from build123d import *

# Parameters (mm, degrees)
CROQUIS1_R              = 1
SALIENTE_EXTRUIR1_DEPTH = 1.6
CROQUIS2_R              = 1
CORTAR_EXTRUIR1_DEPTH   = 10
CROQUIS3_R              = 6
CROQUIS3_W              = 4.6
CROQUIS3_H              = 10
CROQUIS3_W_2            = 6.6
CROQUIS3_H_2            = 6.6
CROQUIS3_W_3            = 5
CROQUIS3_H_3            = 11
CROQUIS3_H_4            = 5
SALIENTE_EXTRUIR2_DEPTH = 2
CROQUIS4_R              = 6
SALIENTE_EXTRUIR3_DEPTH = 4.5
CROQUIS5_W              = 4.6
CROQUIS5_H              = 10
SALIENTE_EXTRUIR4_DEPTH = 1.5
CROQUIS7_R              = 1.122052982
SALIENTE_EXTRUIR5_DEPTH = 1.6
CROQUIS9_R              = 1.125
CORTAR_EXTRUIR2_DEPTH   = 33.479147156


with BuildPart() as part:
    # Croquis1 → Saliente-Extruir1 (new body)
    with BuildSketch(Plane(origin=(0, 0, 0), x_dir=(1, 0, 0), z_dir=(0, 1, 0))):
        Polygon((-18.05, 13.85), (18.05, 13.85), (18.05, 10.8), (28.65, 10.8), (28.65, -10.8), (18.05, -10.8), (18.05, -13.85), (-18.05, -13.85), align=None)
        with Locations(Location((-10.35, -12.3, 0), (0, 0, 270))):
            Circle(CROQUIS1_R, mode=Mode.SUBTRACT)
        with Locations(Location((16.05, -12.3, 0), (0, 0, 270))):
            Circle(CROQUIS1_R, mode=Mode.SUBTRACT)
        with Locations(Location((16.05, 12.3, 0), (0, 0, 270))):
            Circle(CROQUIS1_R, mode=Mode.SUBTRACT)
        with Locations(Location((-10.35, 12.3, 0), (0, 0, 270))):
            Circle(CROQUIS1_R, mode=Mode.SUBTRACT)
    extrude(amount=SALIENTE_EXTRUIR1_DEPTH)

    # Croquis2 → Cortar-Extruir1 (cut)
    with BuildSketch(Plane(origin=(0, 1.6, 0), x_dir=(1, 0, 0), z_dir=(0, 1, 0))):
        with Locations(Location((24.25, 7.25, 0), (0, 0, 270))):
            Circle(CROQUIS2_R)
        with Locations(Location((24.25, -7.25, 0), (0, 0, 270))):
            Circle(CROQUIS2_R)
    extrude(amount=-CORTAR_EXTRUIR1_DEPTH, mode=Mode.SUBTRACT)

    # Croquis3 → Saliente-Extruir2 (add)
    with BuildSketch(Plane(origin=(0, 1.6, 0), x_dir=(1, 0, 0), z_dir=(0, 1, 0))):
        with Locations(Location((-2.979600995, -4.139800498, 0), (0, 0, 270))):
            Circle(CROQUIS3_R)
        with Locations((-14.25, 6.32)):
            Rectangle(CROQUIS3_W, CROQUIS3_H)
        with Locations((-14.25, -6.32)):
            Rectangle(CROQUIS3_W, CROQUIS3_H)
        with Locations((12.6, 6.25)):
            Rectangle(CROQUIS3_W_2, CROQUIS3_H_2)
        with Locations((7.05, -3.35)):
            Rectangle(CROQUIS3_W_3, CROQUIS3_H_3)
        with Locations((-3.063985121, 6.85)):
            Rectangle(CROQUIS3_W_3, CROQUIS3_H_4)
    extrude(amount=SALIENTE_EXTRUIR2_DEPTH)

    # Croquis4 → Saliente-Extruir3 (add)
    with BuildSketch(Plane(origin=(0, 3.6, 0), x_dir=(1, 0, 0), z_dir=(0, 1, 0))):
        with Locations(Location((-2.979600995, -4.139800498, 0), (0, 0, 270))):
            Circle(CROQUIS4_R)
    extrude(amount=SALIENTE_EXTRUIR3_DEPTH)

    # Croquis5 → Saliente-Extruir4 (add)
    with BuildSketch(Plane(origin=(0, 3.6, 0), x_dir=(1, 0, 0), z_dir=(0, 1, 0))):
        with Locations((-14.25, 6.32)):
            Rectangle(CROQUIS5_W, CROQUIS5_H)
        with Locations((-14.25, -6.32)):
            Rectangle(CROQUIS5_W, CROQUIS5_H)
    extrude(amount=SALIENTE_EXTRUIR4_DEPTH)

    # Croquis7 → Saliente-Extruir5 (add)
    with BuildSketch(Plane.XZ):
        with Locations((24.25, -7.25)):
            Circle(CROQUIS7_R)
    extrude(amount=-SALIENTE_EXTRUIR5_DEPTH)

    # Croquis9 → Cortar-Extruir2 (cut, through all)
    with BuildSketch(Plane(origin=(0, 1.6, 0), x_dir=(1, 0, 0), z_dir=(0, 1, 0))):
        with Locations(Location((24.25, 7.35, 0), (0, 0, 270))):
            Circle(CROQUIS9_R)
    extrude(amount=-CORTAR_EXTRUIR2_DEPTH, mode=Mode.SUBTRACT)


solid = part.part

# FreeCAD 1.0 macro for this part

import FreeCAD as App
import Part
import Sketcher
from FreeCAD import Vector


def add_polygon(sketch, points):
    """Adds a closed chain of lines whose ends are joined by coincident constraints."""
    first, n = sketch.GeometryCount, len(points)
    for a, b in zip(points, points[1:] + points[:1]):
        sketch.addGeometry(Part.LineSegment(App.Vector(*a, 0), App.Vector(*b, 0)), False)
    for i in range(n):
        sketch.addConstraint(Sketcher.Constraint("Coincident", first + i, 2, first + (i + 1) % n, 1))

doc = App.newDocument("Part")
body = doc.addObject("PartDesign::Body", "Body")

# Sketch on XZ plane
sketch1 = body.newObject("Sketcher::SketchObject", "Sketch")
sketch1.AttachmentSupport = (doc.getObject("XZ_Plane"), [""])
sketch1.MapMode = "FlatFace"
add_polygon(sketch1, [(18.1, -13.8), (-18.1, -13.8), (-18.1, 13.8), (18.1, 13.8), (18.1, 10.8), (28.6, 10.8), (28.6, -10.8), (18.1, -10.8)])  # lines 0-7
sketch1.addGeometry(Part.Circle(Vector(16.1, 12.3, 0), Vector(0, 0, 1), 1), False)  # 8
sketch1.addGeometry(Part.Circle(Vector(-10.3, 12.3, 0), Vector(0, 0, 1), 1), False)  # 9
sketch1.addGeometry(Part.Circle(Vector(16.1, -12.3, 0), Vector(0, 0, 1), 1), False)  # 10
sketch1.addGeometry(Part.Circle(Vector(-10.3, -12.3, 0), Vector(0, 0, 1), 1), False)  # 11
sketch1.addConstraint(Sketcher.Constraint("Horizontal", 0))
sketch1.addConstraint(Sketcher.Constraint("Vertical", 1))
sketch1.addConstraint(Sketcher.Constraint("Horizontal", 2))
sketch1.addConstraint(Sketcher.Constraint("Vertical", 3))
sketch1.addConstraint(Sketcher.Constraint("Horizontal", 4))
sketch1.addConstraint(Sketcher.Constraint("Vertical", 5))
sketch1.addConstraint(Sketcher.Constraint("Horizontal", 6))
sketch1.addConstraint(Sketcher.Constraint("Vertical", 7))
sketch1.addConstraint(Sketcher.Constraint("Equal", 8, 9))
sketch1.addConstraint(Sketcher.Constraint("Equal", 9, 10))
sketch1.addConstraint(Sketcher.Constraint("Equal", 10, 11))
sketch1.addConstraint(Sketcher.Constraint("Symmetric", 0, 2, 2, 2, -1, 1))
sketch1.addConstraint(Sketcher.Constraint("Symmetric", 8, 3, 10, 3, -1))
sketch1.addConstraint(Sketcher.Constraint("Symmetric", 9, 3, 11, 3, -1))
sketch1.addConstraint(Sketcher.Constraint("Symmetric", 3, 2, 6, 2, -1))
sketch1.addConstraint(Sketcher.Constraint("Horizontal", 8, 3, 9, 3))
sketch1.addConstraint(Sketcher.Constraint("Diameter", 8, 2.0))
sketch1.addConstraint(Sketcher.Constraint("DistanceX", 0, 2, 0, 1, 36.1))
sketch1.addConstraint(Sketcher.Constraint("DistanceX", 4, 1, 4, 2, 10.6))
sketch1.addConstraint(Sketcher.Constraint("DistanceY", 1, 1, 1, 2, 27.7))
sketch1.addConstraint(Sketcher.Constraint("DistanceY", 5, 2, 5, 1, 21.6))
sketch1.addConstraint(Sketcher.Constraint("DistanceX", 8, 3, 2, 2, 2.0))
sketch1.addConstraint(Sketcher.Constraint("DistanceX", 9, 3, 4, 2, 39.0))
sketch1.addConstraint(Sketcher.Constraint("DistanceY", -1, 1, 8, 3, 12.3))
pad1 = body.newObject("PartDesign::Pad", "Pad")
pad1.Profile = sketch1
pad1.Length = 1.6
pad1.Reversed = True

# Sketch on XZ plane
sketch2 = body.newObject("Sketcher::SketchObject", "Sketch001")
sketch2.AttachmentSupport = (doc.getObject("XZ_Plane"), [""])
sketch2.MapMode = "FlatFace"
sketch2.AttachmentOffset = App.Placement(Vector(0, 0, -1.6), App.Rotation())
sketch2.addGeometry(Part.Circle(Vector(24.2, -7.2, 0), Vector(0, 0, 1), 1), False)
sketch2.addGeometry(Part.Circle(Vector(24.2, 7.2, 0), Vector(0, 0, 1), 1), False)
sketch2.addConstraint(Sketcher.Constraint("Equal", 0, 1))
sketch2.addConstraint(Sketcher.Constraint("Symmetric", 0, 3, 1, 3, -1))
sketch2.addConstraint(Sketcher.Constraint("Diameter", 0, 2.0))
sketch2.addConstraint(Sketcher.Constraint("DistanceY", 0, 3, 1, 3, 14.5))
sketch2.addConstraint(Sketcher.Constraint("DistanceX", -1, 1, 0, 3, 24.25))
pocket1 = body.newObject("PartDesign::Pocket", "Pocket")
pocket1.Profile = sketch2
pocket1.Length = 10
pocket1.Reversed = True

# Sketch on XZ plane
sketch3 = body.newObject("Sketcher::SketchObject", "Sketch002")
sketch3.AttachmentSupport = (doc.getObject("XZ_Plane"), [""])
sketch3.MapMode = "FlatFace"
sketch3.AttachmentOffset = App.Placement(Vector(0, 0, -1.6), App.Rotation())
sketch3.addGeometry(Part.Circle(Vector(-3, 4.1, 0), Vector(0, 0, 1), 6), False)  # 0
add_polygon(sketch3, [(-16.6, -11.3), (-16.6, -1.3), (-11.9, -1.3), (-11.9, -11.3)])  # lines 1-4
add_polygon(sketch3, [(-16.6, 1.3), (-16.6, 11.3), (-11.9, 11.3), (-11.9, 1.3)])  # lines 5-8
add_polygon(sketch3, [(9.3, -9.6), (9.3, -3), (15.9, -3), (15.9, -9.6)])  # lines 9-12
add_polygon(sketch3, [(4.5, -2.1), (4.5, 8.8), (9.6, 8.8), (9.6, -2.1)])  # lines 13-16
add_polygon(sketch3, [(-5.6, -9.3), (-5.6, -4.3), (-0.6, -4.3), (-0.6, -9.3)])  # lines 17-20
sketch3.addConstraint(Sketcher.Constraint("Vertical", 1))
sketch3.addConstraint(Sketcher.Constraint("Horizontal", 2))
sketch3.addConstraint(Sketcher.Constraint("Vertical", 3))
sketch3.addConstraint(Sketcher.Constraint("Horizontal", 4))
sketch3.addConstraint(Sketcher.Constraint("Vertical", 5))
sketch3.addConstraint(Sketcher.Constraint("Horizontal", 6))
sketch3.addConstraint(Sketcher.Constraint("Vertical", 7))
sketch3.addConstraint(Sketcher.Constraint("Horizontal", 8))
sketch3.addConstraint(Sketcher.Constraint("Vertical", 9))
sketch3.addConstraint(Sketcher.Constraint("Horizontal", 10))
sketch3.addConstraint(Sketcher.Constraint("Vertical", 11))
sketch3.addConstraint(Sketcher.Constraint("Horizontal", 12))
sketch3.addConstraint(Sketcher.Constraint("Vertical", 13))
sketch3.addConstraint(Sketcher.Constraint("Horizontal", 14))
sketch3.addConstraint(Sketcher.Constraint("Vertical", 15))
sketch3.addConstraint(Sketcher.Constraint("Horizontal", 16))
sketch3.addConstraint(Sketcher.Constraint("Vertical", 17))
sketch3.addConstraint(Sketcher.Constraint("Horizontal", 18))
sketch3.addConstraint(Sketcher.Constraint("Vertical", 19))
sketch3.addConstraint(Sketcher.Constraint("Horizontal", 20))
sketch3.addConstraint(Sketcher.Constraint("Symmetric", 4, 2, 5, 2, -1))
sketch3.addConstraint(Sketcher.Constraint("Symmetric", 2, 2, 7, 2, -1))
sketch3.addConstraint(Sketcher.Constraint("Equal", 16, 18))
sketch3.addConstraint(Sketcher.Constraint("Equal", 12, 9))
sketch3.addConstraint(Sketcher.Constraint("Equal", 20, 17))
sketch3.addConstraint(Sketcher.Constraint("Diameter", 0, 12.0))
sketch3.addConstraint(Sketcher.Constraint("DistanceX", 14, 1, 14, 2, 5.0))
sketch3.addConstraint(Sketcher.Constraint("DistanceY", 1, 1, 1, 2, 10.0))
sketch3.addConstraint(Sketcher.Constraint("DistanceY", 13, 1, 13, 2, 11.0))
sketch3.addConstraint(Sketcher.Constraint("DistanceX", 2, 1, 2, 2, 4.6))
sketch3.addConstraint(Sketcher.Constraint("DistanceX", 10, 1, 10, 2, 6.6))
sketch3.addConstraint(Sketcher.Constraint("DistanceX", -1, 1, 9, 2, 9.3))
sketch3.addConstraint(Sketcher.Constraint("DistanceY", 9, 2, 13, 2, 11.8))
sketch3.addConstraint(Sketcher.Constraint("DistanceX", 6, 2, 13, 2, 16.5))
sketch3.addConstraint(Sketcher.Constraint("DistanceY", 17, 2, 16, 2, 2.2))
sketch3.addConstraint(Sketcher.Constraint("DistanceX", 1, 2, -1, 1, 16.55))
sketch3.addConstraint(Sketcher.Constraint("DistanceY", 1, 2, -1, 1, 1.32))
sketch3.addConstraint(Sketcher.Constraint("DistanceY", 9, 2, -1, 1, 2.95))
sketch3.addConstraint(Sketcher.Constraint("DistanceX", 0, 3, -1, 1, 2.979601))
sketch3.addConstraint(Sketcher.Constraint("DistanceY", -1, 1, 0, 3, 4.1398))
sketch3.addConstraint(Sketcher.Constraint("DistanceX", 17, 2, -1, 1, 5.563985))
pad2 = body.newObject("PartDesign::Pad", "Pad001")
pad2.Profile = sketch3
pad2.Length = 2
pad2.Reversed = True

# Sketch on XZ plane
sketch4 = body.newObject("Sketcher::SketchObject", "Sketch003")
sketch4.AttachmentSupport = (doc.getObject("XZ_Plane"), [""])
sketch4.MapMode = "FlatFace"
sketch4.AttachmentOffset = App.Placement(Vector(0, 0, -3.6), App.Rotation())
sketch4.addGeometry(Part.Circle(Vector(-3, 4, 0), Vector(0, 0, 1), 6), False)
sketch4.addConstraint(Sketcher.Constraint("Diameter", 0, 12.0))
sketch4.addConstraint(Sketcher.Constraint("DistanceX", 0, 3, -1, 1, 2.979601))
sketch4.addConstraint(Sketcher.Constraint("DistanceY", -1, 1, 0, 3, 4.1398))
pad3 = body.newObject("PartDesign::Pad", "Pad002")
pad3.Profile = sketch4
pad3.Length = 4.5
pad3.Reversed = True

# Sketch on XZ plane
sketch5 = body.newObject("Sketcher::SketchObject", "Sketch004")
sketch5.AttachmentSupport = (doc.getObject("XZ_Plane"), [""])
sketch5.MapMode = "FlatFace"
sketch5.AttachmentOffset = App.Placement(Vector(0, 0, -3.6), App.Rotation())
add_polygon(sketch5, [(-16.6, -11.3), (-16.6, -1.3), (-11.9, -1.3), (-11.9, -11.3)])  # lines 0-3
add_polygon(sketch5, [(-16.6, 1.3), (-16.6, 11.3), (-11.9, 11.3), (-11.9, 1.3)])  # lines 4-7
sketch5.addConstraint(Sketcher.Constraint("Vertical", 0))
sketch5.addConstraint(Sketcher.Constraint("Horizontal", 1))
sketch5.addConstraint(Sketcher.Constraint("Vertical", 2))
sketch5.addConstraint(Sketcher.Constraint("Horizontal", 3))
sketch5.addConstraint(Sketcher.Constraint("Vertical", 4))
sketch5.addConstraint(Sketcher.Constraint("Horizontal", 5))
sketch5.addConstraint(Sketcher.Constraint("Vertical", 6))
sketch5.addConstraint(Sketcher.Constraint("Horizontal", 7))
sketch5.addConstraint(Sketcher.Constraint("Symmetric", 3, 2, 4, 2, -1))
sketch5.addConstraint(Sketcher.Constraint("Symmetric", 1, 2, 6, 2, -1))
sketch5.addConstraint(Sketcher.Constraint("DistanceY", 0, 1, 0, 2, 10.0))
sketch5.addConstraint(Sketcher.Constraint("DistanceX", 1, 1, 1, 2, 4.6))
sketch5.addConstraint(Sketcher.Constraint("DistanceX", 0, 2, -1, 1, 16.55))
sketch5.addConstraint(Sketcher.Constraint("DistanceY", 0, 2, -1, 1, 1.32))
pad4 = body.newObject("PartDesign::Pad", "Pad003")
pad4.Profile = sketch5
pad4.Length = 1.5
pad4.Reversed = True

# Sketch on XZ plane
sketch6 = body.newObject("Sketcher::SketchObject", "Sketch005")
sketch6.AttachmentSupport = (doc.getObject("XZ_Plane"), [""])
sketch6.MapMode = "FlatFace"
sketch6.addGeometry(Part.Circle(Vector(24.2, -7.2, 0), Vector(0, 0, 1), 1.1), False)
sketch6.addConstraint(Sketcher.Constraint("DistanceX", -1, 1, 0, 3, 24.25))
sketch6.addConstraint(Sketcher.Constraint("DistanceY", 0, 3, -1, 1, 7.25))
sketch6.addConstraint(Sketcher.Constraint("Diameter", 0, 2.244106))
pad5 = body.newObject("PartDesign::Pad", "Pad004")
pad5.Profile = sketch6
pad5.Length = 1.6
pad5.Reversed = True

# Sketch on XZ plane
sketch7 = body.newObject("Sketcher::SketchObject", "Sketch006")
sketch7.AttachmentSupport = (doc.getObject("XZ_Plane"), [""])
sketch7.MapMode = "FlatFace"
sketch7.AttachmentOffset = App.Placement(Vector(0, 0, -1.6), App.Rotation())
sketch7.addGeometry(Part.Circle(Vector(24.2, -7.3, 0), Vector(0, 0, 1), 1.1), False)
sketch7.addConstraint(Sketcher.Constraint("Diameter", 0, 2.25))
sketch7.addConstraint(Sketcher.Constraint("DistanceX", -1, 1, 0, 3, 24.25))
sketch7.addConstraint(Sketcher.Constraint("DistanceY", 0, 3, -1, 1, 7.35))
pocket2 = body.newObject("PartDesign::Pocket", "Pocket001")
pocket2.Profile = sketch7
pocket2.Type = "ThroughAll"
pocket2.Reversed = True

doc.recompute()
